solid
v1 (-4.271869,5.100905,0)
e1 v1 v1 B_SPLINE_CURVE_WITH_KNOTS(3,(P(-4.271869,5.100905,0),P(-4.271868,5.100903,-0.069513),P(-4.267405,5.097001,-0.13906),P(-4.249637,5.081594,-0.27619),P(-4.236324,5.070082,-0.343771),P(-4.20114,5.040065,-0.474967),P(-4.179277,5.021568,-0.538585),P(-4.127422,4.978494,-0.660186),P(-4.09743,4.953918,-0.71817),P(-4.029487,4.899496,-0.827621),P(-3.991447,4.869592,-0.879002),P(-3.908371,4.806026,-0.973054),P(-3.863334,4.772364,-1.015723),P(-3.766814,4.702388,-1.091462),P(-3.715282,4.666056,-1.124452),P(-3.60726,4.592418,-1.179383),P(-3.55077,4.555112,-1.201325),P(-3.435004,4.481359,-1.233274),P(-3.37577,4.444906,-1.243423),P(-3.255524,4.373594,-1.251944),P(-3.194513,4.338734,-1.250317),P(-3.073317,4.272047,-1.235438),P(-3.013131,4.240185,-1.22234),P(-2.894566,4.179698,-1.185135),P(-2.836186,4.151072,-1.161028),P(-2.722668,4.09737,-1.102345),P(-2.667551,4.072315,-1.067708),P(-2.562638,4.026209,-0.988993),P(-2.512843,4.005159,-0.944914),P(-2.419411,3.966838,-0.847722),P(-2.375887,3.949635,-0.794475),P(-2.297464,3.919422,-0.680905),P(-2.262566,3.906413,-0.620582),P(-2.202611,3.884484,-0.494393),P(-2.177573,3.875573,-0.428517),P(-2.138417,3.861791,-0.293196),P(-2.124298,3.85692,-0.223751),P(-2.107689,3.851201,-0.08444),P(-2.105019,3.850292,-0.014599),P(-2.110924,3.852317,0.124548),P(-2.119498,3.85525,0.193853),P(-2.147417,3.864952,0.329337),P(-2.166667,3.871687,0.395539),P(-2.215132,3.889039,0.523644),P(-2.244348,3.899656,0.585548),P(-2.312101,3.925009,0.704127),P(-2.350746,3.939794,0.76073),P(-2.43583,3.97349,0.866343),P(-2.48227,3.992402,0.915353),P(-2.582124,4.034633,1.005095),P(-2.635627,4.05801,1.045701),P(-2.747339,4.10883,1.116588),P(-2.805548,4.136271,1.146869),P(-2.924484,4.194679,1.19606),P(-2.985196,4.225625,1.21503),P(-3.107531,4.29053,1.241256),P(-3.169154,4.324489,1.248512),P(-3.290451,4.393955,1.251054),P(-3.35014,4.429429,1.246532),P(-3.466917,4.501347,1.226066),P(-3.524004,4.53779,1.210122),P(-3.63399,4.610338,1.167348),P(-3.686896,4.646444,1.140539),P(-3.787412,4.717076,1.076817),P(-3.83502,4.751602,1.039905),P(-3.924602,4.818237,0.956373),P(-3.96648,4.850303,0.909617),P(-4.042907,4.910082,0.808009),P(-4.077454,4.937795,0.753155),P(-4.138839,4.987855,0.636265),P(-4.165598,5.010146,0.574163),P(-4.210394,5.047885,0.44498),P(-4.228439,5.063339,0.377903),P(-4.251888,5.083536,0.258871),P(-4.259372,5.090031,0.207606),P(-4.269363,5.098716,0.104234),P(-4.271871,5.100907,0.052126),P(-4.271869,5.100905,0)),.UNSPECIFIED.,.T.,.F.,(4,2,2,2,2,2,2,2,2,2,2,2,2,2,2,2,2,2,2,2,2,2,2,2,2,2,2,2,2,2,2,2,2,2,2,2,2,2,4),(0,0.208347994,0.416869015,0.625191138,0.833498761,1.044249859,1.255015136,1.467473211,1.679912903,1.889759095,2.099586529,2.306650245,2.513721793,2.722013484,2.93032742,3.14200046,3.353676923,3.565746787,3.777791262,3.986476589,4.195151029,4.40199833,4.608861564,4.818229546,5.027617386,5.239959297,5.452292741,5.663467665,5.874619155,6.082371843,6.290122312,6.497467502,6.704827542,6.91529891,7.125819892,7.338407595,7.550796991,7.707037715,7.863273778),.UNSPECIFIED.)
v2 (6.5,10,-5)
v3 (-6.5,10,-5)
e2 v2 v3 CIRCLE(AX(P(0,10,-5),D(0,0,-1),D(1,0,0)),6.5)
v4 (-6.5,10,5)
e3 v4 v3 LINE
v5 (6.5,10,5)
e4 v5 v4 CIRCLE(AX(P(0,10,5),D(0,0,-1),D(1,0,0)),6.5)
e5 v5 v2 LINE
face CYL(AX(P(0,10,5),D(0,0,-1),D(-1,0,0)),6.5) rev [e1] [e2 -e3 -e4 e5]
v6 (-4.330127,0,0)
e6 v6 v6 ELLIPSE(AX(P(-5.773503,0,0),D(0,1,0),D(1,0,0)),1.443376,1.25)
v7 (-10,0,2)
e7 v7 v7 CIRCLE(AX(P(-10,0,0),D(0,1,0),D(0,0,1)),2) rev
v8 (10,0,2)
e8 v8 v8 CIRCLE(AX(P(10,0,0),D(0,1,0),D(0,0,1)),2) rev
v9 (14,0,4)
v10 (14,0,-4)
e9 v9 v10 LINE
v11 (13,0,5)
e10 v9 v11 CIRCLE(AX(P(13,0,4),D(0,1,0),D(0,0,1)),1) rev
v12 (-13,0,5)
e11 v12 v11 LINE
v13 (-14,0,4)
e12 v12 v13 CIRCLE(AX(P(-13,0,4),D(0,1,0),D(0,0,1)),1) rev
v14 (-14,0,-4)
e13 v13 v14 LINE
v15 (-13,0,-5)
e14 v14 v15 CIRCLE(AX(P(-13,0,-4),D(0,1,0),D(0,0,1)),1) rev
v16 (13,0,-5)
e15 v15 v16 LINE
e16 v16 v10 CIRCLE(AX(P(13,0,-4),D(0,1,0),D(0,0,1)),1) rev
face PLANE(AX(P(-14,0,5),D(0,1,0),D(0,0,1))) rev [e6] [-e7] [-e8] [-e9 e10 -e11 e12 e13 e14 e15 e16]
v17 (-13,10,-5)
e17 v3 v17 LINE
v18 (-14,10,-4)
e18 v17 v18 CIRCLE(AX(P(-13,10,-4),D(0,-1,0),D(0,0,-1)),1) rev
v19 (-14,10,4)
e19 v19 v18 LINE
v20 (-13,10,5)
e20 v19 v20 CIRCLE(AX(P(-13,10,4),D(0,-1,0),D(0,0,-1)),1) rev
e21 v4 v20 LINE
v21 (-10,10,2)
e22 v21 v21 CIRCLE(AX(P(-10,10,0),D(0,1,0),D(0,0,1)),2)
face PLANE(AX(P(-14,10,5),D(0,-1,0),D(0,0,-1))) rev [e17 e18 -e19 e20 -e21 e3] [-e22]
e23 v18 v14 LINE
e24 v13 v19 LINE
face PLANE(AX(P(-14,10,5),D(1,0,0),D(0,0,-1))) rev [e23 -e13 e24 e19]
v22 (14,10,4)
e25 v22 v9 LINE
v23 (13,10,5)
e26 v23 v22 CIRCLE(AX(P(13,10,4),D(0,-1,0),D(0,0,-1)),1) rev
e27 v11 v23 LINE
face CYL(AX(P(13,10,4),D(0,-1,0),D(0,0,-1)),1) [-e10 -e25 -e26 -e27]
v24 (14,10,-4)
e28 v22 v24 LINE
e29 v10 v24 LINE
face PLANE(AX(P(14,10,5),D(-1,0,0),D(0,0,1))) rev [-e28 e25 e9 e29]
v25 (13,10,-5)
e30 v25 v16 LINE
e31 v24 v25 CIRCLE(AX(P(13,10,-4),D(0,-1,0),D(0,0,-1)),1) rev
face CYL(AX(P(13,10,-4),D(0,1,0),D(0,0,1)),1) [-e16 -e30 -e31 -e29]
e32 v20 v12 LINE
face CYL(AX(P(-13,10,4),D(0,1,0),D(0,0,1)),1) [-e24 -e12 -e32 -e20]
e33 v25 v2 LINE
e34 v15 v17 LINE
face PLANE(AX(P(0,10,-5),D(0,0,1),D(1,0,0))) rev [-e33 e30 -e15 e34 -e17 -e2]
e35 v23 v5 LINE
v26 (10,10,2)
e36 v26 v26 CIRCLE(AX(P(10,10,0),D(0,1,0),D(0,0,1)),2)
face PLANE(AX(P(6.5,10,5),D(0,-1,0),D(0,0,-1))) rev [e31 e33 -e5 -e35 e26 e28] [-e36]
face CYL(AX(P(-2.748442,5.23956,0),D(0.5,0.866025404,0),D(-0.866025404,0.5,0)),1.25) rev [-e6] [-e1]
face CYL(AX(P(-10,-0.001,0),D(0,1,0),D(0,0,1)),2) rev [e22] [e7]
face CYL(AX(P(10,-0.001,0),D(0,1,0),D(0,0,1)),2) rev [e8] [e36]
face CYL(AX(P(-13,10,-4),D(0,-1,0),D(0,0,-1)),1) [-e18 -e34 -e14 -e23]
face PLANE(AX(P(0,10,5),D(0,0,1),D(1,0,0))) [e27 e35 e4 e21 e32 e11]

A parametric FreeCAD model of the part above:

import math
import FreeCAD as App
import Part
import Sketcher

V = App.Vector
Q = App.Units.Quantity


def edges_at(feature, points):
    """Names of the edges that pass closest to the given points."""
    edges = feature.Shape.Edges
    near = lambda p: min(range(len(edges)), key=lambda i: edges[i].distToShape(Part.Vertex(*p))[0])
    return sorted({f"Edge{near(p) + 1}" for p in points})


def add_polygon(sketch, points):
    """Adds a closed chain of lines whose ends are joined by coincident constraints."""
    first, n = sketch.GeometryCount, len(points)
    for a, b in zip(points, points[1:] + points[:1]):
        sketch.addGeometry(Part.LineSegment(App.Vector(*a, 0), App.Vector(*b, 0)), False)
    for i in range(n):
        sketch.addConstraint(Sketcher.Constraint("Coincident", first + i, 2, first + (i + 1) % n, 1))

doc = App.newDocument("Part")
body = doc.addObject("PartDesign::Body", "Body")

sketch1 = body.newObject("Sketcher::SketchObject", "Sketch")
sketch1.AttachmentSupport = (doc.getObject("XY_Plane"), [""])
sketch1.MapMode = "FlatFace"
sketch1.addGeometry([
    Part.LineSegment(V(-14, 0, 0), V(14, 0, 0)),
    Part.LineSegment(V(14, 0, 0), V(14, 10, 0)),
    Part.LineSegment(V(14, 10, 0), V(6, 10, 0)),
    Part.ArcOfCircle(Part.Circle(V(0, 10, 0), V(0, 0, 1), 6), math.radians(180), math.radians(360)),
    Part.LineSegment(V(-6, 10, 0), V(-14, 10, 0)),
    Part.LineSegment(V(-14, 10, 0), V(-14, 0, 0)),
], False)
sketch1.addConstraint([
    Sketcher.Constraint("Coincident", 0, 2, 1, 1),
    Sketcher.Constraint("Coincident", 1, 2, 2, 1),
    Sketcher.Constraint("Coincident", 2, 2, 3, 2),
    Sketcher.Constraint("Coincident", 3, 1, 4, 1),
    Sketcher.Constraint("Coincident", 4, 2, 5, 1),
    Sketcher.Constraint("Coincident", 5, 2, 0, 1),
    Sketcher.Constraint("Horizontal", 0),
    Sketcher.Constraint("Vertical", 1),
    Sketcher.Constraint("Horizontal", 2),
    Sketcher.Constraint("Horizontal", 4),
    Sketcher.Constraint("Vertical", 5),
    Sketcher.Constraint("Symmetric", 0, 2, 5, 2, -1, 1),
    Sketcher.Constraint("Symmetric", 2, 2, 3, 1, -2),
    Sketcher.Constraint("Horizontal", 3, 3, 1, 2),
    Sketcher.Constraint("Radius", 3, Q("6.5 mm")),
    Sketcher.Constraint("DistanceX", 0, 1, 0, 2, Q("28 mm")),
    Sketcher.Constraint("DistanceY", 1, 1, 1, 2, Q("10 mm")),
])
pad1 = body.newObject("PartDesign::Pad", "Pad")
pad1.Profile = sketch1
pad1.Length = 10
pad1.Midplane = True

sketch2 = body.newObject("Sketcher::SketchObject", "Sketch001")
sketch2.AttachmentSupport = (doc.getObject("XY_Plane"), [""])
sketch2.MapMode = "FlatFace"
add_polygon(sketch2, [(-7.6, -3.2), (-2.7, 5.2), (-3.8, 5.9), (-8.7, -2.5)])
sketch2.addGeometry(Part.LineSegment(V(-2.7, 5.2, 0), V(-7.6, -3.2, 0)), True)
sketch2.addConstraint([
    Sketcher.Constraint("Coincident", 4, 1, 0, 2),
    Sketcher.Constraint("Coincident", 4, 2, 3, 2),
    Sketcher.Constraint("Perpendicular", 0, 1),
    Sketcher.Constraint("Perpendicular", 1, 2),
    Sketcher.Constraint("Perpendicular", 2, 3),
    Sketcher.Constraint("Angle", 0, Q("60 deg")),
    Sketcher.Constraint("Distance", 1, Q("1.25 mm")),
    Sketcher.Constraint("DistanceX", 0, 2, -1, 1, Q("2.748442 mm")),
    Sketcher.Constraint("DistanceY", -1, 1, 0, 2, Q("5.23956 mm")),
    Sketcher.Constraint("DistanceY", 2, 2, -1, 1, Q("2.548832 mm")),
])
groove = body.newObject("PartDesign::Groove", "Groove")
groove.Profile = sketch2
groove.ReferenceAxis = (sketch2, ["Axis0"])
groove.Angle = 360

sketch3 = body.newObject("Sketcher::SketchObject", "Sketch002")
sketch3.AttachmentSupport = (doc.getObject("XZ_Plane"), [""])
sketch3.MapMode = "FlatFace"
sketch3.AttachmentOffset = App.Placement(V(0, 0, -10), App.Rotation())
sketch3.addGeometry(Part.Circle(V(-10, 0, 0), V(0, 0, 1), 2), False)
sketch3.addConstraint([
    Sketcher.Constraint("PointOnObject", 0, 3, -1),
    Sketcher.Constraint("Diameter", 0, Q("4 mm")),
    Sketcher.Constraint("DistanceX", 0, 3, -1, 1, Q("10 mm")),
])
pocket1 = body.newObject("PartDesign::Pocket", "Pocket")
pocket1.Profile = sketch3
pocket1.Type = "UpToFirst"
pocket1.Reversed = True

sketch4 = body.newObject("Sketcher::SketchObject", "Sketch003")
sketch4.AttachmentSupport = (doc.getObject("XZ_Plane"), [""])
sketch4.MapMode = "FlatFace"
sketch4.AttachmentOffset = App.Placement(V(0, 0, -10), App.Rotation())
sketch4.addGeometry(Part.Circle(V(10, 0, 0), V(0, 0, 1), 2), False)
sketch4.addConstraint([
    Sketcher.Constraint("PointOnObject", 0, 3, -1),
    Sketcher.Constraint("Diameter", 0, Q("4 mm")),
    Sketcher.Constraint("DistanceX", -1, 1, 0, 3, Q("10 mm")),
])
pocket2 = body.newObject("PartDesign::Pocket", "Pocket001")
pocket2.Profile = sketch4
pocket2.Type = "UpToFirst"
pocket2.Reversed = True
doc.recompute()

fillet = body.newObject("PartDesign::Fillet", "Fillet")
fillet.Base = (pocket2, edges_at(pocket2, [
    (14, 5, 5),
    (-14, 5, 5),
    (14, 5, -5),
    (-14, 5, -5),
]))
fillet.Radius = 1

doc.recompute()
